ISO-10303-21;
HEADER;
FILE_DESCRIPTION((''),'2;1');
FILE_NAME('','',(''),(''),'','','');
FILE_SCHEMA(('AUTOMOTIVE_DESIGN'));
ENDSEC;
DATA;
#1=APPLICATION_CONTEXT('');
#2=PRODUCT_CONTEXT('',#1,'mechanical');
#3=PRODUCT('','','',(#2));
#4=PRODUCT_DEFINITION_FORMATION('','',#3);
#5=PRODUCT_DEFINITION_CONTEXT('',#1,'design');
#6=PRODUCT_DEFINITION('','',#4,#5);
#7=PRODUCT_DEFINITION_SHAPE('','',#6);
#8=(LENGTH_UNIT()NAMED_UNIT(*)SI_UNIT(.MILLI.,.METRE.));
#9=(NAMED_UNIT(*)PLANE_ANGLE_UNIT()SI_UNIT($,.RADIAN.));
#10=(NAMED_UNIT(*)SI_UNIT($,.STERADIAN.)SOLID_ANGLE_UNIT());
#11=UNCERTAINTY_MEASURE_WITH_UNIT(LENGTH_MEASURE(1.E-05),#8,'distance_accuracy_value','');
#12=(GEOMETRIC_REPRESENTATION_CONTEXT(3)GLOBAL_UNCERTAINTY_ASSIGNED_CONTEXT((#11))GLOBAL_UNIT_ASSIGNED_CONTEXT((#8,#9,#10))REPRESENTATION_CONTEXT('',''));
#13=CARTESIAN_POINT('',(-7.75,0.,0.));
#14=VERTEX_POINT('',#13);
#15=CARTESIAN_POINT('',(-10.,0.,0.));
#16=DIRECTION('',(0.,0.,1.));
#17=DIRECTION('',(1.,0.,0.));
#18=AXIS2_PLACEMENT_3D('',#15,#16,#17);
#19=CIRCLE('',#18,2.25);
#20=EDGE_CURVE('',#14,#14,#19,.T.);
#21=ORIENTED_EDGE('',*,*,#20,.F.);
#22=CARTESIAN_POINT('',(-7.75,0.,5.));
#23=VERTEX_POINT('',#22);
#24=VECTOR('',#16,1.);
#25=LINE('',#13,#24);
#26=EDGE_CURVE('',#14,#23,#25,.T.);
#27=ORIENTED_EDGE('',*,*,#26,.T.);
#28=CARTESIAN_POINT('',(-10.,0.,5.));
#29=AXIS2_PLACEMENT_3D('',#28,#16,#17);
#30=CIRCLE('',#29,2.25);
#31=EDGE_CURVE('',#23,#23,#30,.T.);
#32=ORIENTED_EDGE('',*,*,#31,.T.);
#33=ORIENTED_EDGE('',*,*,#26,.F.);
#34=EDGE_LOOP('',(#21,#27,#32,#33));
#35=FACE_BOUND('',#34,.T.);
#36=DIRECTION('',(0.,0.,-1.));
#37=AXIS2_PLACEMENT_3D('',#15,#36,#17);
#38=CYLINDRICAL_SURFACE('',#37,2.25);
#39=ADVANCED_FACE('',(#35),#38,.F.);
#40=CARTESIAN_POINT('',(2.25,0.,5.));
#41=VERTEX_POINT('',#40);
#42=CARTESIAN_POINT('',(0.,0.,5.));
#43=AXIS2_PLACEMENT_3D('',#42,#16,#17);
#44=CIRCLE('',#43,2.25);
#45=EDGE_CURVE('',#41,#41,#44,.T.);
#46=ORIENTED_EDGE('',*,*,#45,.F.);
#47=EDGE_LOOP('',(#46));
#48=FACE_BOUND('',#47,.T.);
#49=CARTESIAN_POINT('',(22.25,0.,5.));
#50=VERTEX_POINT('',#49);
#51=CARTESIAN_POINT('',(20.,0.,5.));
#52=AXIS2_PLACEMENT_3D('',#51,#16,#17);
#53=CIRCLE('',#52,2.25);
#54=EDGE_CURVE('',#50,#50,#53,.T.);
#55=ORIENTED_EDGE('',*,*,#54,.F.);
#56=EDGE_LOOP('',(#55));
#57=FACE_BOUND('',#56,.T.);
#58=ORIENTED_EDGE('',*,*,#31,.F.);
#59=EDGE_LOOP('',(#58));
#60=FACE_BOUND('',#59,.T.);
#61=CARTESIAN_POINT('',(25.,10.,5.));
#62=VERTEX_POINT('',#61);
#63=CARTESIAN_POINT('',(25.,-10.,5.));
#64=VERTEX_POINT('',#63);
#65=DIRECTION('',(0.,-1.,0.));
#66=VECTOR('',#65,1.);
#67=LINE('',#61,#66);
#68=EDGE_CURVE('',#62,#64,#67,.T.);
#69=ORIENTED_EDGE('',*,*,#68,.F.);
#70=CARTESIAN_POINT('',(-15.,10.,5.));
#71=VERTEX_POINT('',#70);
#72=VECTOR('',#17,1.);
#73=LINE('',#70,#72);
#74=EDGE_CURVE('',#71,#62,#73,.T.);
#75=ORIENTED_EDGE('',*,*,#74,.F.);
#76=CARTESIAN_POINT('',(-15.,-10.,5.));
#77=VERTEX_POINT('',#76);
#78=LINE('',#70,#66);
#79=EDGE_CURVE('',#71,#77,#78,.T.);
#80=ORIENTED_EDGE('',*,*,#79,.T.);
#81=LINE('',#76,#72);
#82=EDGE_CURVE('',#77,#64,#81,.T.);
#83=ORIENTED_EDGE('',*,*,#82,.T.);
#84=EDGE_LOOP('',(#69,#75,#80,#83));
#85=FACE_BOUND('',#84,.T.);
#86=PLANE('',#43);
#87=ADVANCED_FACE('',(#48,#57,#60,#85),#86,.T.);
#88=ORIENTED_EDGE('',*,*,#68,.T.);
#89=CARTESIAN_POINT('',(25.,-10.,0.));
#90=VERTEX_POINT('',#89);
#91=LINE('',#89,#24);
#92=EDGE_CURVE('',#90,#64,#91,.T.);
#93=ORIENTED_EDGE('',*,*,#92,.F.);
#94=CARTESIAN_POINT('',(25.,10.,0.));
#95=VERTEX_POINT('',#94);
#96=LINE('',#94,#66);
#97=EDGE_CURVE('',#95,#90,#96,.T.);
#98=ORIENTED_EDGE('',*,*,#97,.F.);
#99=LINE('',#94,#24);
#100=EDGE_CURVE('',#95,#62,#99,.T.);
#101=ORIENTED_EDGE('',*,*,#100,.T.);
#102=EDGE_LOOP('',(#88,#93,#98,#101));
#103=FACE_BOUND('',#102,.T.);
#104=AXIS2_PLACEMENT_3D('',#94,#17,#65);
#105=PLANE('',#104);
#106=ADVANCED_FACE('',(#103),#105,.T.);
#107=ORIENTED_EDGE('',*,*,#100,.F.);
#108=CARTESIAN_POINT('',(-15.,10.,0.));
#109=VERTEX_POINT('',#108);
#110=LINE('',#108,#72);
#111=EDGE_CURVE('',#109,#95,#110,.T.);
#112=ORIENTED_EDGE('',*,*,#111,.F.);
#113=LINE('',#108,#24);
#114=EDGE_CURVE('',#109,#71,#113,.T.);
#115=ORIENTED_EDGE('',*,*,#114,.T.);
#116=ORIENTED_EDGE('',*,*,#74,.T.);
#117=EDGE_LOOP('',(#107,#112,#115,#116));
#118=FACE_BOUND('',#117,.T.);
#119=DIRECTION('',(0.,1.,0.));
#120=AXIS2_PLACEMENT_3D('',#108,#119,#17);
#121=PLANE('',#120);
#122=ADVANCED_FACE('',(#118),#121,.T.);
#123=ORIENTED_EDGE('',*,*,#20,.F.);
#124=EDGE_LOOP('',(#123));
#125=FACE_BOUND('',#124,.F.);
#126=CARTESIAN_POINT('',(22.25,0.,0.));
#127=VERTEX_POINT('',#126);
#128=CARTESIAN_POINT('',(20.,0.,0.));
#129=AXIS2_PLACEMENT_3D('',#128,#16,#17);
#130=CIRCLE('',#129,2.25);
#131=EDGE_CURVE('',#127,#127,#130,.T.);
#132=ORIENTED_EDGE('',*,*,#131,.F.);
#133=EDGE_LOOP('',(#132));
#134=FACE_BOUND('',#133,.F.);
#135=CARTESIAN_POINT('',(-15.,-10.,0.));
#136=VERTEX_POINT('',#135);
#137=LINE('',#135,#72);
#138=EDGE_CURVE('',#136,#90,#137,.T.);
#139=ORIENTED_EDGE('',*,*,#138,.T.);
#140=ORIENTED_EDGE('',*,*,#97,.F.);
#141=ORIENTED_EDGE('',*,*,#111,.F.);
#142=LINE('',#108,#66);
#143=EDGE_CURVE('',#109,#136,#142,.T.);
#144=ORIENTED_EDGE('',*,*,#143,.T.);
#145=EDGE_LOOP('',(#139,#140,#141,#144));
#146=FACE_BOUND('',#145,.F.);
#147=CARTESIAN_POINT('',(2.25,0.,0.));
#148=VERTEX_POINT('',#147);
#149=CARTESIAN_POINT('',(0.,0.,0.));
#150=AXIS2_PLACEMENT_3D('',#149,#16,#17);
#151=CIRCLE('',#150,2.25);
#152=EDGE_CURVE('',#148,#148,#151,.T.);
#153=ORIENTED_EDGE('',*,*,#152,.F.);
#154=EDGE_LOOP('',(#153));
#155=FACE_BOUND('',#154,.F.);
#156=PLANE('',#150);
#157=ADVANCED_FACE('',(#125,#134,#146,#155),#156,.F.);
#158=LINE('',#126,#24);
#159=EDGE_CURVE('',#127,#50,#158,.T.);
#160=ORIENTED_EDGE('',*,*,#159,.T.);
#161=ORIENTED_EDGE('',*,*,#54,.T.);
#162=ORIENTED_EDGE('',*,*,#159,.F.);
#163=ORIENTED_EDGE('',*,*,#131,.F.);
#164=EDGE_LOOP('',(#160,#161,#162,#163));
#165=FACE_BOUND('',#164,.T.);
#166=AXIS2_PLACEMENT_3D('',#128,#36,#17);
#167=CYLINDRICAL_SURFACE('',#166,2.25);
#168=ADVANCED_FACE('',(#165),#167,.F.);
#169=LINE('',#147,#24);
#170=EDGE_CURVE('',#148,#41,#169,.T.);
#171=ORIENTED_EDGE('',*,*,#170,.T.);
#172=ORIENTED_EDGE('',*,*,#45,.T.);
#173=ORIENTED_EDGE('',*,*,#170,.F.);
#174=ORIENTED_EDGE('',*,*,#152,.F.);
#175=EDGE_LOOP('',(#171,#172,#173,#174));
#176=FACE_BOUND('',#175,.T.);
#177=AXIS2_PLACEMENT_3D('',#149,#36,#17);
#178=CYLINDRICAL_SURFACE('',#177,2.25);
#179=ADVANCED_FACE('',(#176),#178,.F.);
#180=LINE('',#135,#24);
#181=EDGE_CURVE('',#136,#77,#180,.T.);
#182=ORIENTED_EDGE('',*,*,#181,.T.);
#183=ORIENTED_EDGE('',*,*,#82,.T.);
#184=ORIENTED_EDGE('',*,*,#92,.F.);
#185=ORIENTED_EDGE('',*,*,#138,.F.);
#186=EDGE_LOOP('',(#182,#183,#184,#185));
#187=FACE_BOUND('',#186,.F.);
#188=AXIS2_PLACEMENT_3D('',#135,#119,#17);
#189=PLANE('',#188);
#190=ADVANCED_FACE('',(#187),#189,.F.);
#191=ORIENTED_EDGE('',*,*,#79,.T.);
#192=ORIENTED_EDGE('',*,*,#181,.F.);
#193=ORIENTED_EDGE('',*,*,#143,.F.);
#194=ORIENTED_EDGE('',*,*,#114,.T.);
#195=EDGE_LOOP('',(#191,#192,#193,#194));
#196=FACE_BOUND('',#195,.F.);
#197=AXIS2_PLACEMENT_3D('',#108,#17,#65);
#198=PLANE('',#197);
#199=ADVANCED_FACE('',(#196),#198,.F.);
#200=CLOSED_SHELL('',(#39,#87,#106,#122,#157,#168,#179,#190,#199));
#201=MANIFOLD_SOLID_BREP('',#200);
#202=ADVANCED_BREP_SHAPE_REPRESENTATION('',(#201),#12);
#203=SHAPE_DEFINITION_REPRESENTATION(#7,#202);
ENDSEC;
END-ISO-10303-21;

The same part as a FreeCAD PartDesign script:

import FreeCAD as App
import Part
import Sketcher

doc = App.newDocument("Part")
body = doc.addObject("PartDesign::Body", "Body")

# Sketch on XY plane
sketch1 = body.newObject("Sketcher::SketchObject", "Sketch")
sketch1.AttachmentSupport = (doc.getObject("XY_Plane"), [""])
sketch1.MapMode = "FlatFace"
sketch1.addGeometry([
    Part.LineSegment(App.Vector(25, 10, 0), App.Vector(-15, 10, 0)),  # 0
    Part.LineSegment(App.Vector(-15, 10, 0), App.Vector(-15, -10, 0)),  # 1
    Part.LineSegment(App.Vector(-15, -10, 0), App.Vector(25, -10, 0)),  # 2
    Part.LineSegment(App.Vector(25, -10, 0), App.Vector(25, 10, 0)),  # 3
    Part.Circle(App.Vector(-10, 0, 0), App.Vector(0, 0, 1), 2.2),  # 4
    Part.Circle(App.Vector(0, 0, 0), App.Vector(0, 0, 1), 2.2),  # 5
    Part.Circle(App.Vector(20, 0, 0), App.Vector(0, 0, 1), 2.2),  # 6
], False)
sketch1.addConstraint([
    Sketcher.Constraint("Coincident", 0, 2, 1, 1),
    Sketcher.Constraint("Coincident", 1, 2, 2, 1),
    Sketcher.Constraint("Coincident", 2, 2, 3, 1),
    Sketcher.Constraint("Coincident", 3, 2, 0, 1),
    Sketcher.Constraint("Horizontal", 0),
    Sketcher.Constraint("Vertical", 1),
    Sketcher.Constraint("Horizontal", 2),
    Sketcher.Constraint("Vertical", 3),
    Sketcher.Constraint("Coincident", 5, 3, -1, 1),
    Sketcher.Constraint("Equal", 4, 5),
    Sketcher.Constraint("Equal", 5, 6),
    Sketcher.Constraint("PointOnObject", 4, 3, -1),
    Sketcher.Constraint("PointOnObject", 6, 3, -1),
    Sketcher.Constraint("Diameter", 4, 4.5),
    Sketcher.Constraint("DistanceY", 1, 2, 1, 1, 20.0),
    Sketcher.Constraint("DistanceX", 4, 3, -1, 1, 10.0),
    Sketcher.Constraint("DistanceX", -1, 1, 6, 3, 20.0),
    Sketcher.Constraint("DistanceY", -1, 1, 0, 2, 10.0),
    Sketcher.Constraint("DistanceX", 0, 2, 4, 3, 5.0),
    Sketcher.Constraint("DistanceX", 6, 3, 2, 2, 5.0),
])
pad1 = body.newObject("PartDesign::Pad", "Pad")
pad1.Profile = sketch1
pad1.Length = 5

doc.recompute()
